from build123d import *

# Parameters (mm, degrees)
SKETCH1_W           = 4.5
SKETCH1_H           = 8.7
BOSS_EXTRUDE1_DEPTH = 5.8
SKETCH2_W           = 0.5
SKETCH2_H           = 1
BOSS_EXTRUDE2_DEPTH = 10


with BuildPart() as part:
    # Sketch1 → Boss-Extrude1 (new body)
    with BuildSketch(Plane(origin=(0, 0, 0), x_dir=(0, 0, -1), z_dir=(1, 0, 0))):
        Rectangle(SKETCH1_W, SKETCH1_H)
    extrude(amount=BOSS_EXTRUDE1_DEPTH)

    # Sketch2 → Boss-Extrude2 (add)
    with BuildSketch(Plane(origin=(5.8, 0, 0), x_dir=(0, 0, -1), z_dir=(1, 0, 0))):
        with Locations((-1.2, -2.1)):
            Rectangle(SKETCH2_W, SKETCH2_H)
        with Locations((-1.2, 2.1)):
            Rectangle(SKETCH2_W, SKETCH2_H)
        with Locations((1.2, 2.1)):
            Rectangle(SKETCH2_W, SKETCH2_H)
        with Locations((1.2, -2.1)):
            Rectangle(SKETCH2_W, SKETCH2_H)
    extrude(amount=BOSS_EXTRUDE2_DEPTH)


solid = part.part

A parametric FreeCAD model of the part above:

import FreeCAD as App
import Part
import Sketcher


def add_polygon(sketch, points):
    """Adds a closed chain of lines whose ends are joined by coincident constraints."""
    first, n = sketch.GeometryCount, len(points)
    for a, b in zip(points, points[1:] + points[:1]):
        sketch.addGeometry(Part.LineSegment(App.Vector(*a, 0), App.Vector(*b, 0)), False)
    for i in range(n):
        sketch.addConstraint(Sketcher.Constraint("Coincident", first + i, 2, first + (i + 1) % n, 1))

doc = App.newDocument("Part")
body = doc.addObject("PartDesign::Body", "Body")

sketch1 = doc.addObject("Sketcher::SketchObject", "Sketch")
body.addObject(sketch1)
sketch1.AttachmentSupport = (doc.YZ_Plane, [""])
sketch1.MapMode = "FlatFace"
add_polygon(sketch1, [(4.35, 2.25), (-4.35, 2.25), (-4.35, -2.25), (4.35, -2.25)])
sketch1.addConstraint(Sketcher.Constraint("Horizontal", 0))
sketch1.addConstraint(Sketcher.Constraint("Vertical", 1))
sketch1.addConstraint(Sketcher.Constraint("Horizontal", 2))
sketch1.addConstraint(Sketcher.Constraint("Vertical", 3))
sketch1.addConstraint(Sketcher.Constraint("Symmetric", 0, 2, 2, 2, -1, 1))
sketch1.addConstraint(Sketcher.Constraint("DistanceX", 0, 2, 0, 1, 8.7))
sketch1.addConstraint(Sketcher.Constraint("DistanceY", 1, 2, 1, 1, 4.5))
pad1 = doc.addObject("PartDesign::Pad", "Pad")
body.addObject(pad1)
pad1.Profile = sketch1
pad1.Length = 5.8

sketch2 = doc.addObject("Sketcher::SketchObject", "Sketch001")
body.addObject(sketch2)
sketch2.AttachmentSupport = (doc.YZ_Plane, [""])
sketch2.MapMode = "FlatFace"
sketch2.AttachmentOffset = App.Placement(App.Vector(0, 0, 5.8), App.Rotation())
add_polygon(sketch2, [(-1.6, 1.45), (-2.6, 1.45), (-2.6, 0.95), (-1.6, 0.95)])
add_polygon(sketch2, [(2.6, 1.45), (1.6, 1.45), (1.6, 0.95), (2.6, 0.95)])
add_polygon(sketch2, [(2.6, -0.95), (1.6, -0.95), (1.6, -1.45), (2.6, -1.45)])
add_polygon(sketch2, [(-1.6, -0.95), (-2.6, -0.95), (-2.6, -1.45), (-1.6, -1.45)])
sketch2.addConstraint(Sketcher.Constraint("Horizontal", 0))
sketch2.addConstraint(Sketcher.Constraint("Vertical", 1))
sketch2.addConstraint(Sketcher.Constraint("Horizontal", 2))
sketch2.addConstraint(Sketcher.Constraint("Vertical", 3))
sketch2.addConstraint(Sketcher.Constraint("Horizontal", 4))
sketch2.addConstraint(Sketcher.Constraint("Vertical", 5))
sketch2.addConstraint(Sketcher.Constraint("Horizontal", 6))
sketch2.addConstraint(Sketcher.Constraint("Vertical", 7))
sketch2.addConstraint(Sketcher.Constraint("Horizontal", 8))
sketch2.addConstraint(Sketcher.Constraint("Vertical", 9))
sketch2.addConstraint(Sketcher.Constraint("Horizontal", 10))
sketch2.addConstraint(Sketcher.Constraint("Vertical", 11))
sketch2.addConstraint(Sketcher.Constraint("Horizontal", 12))
sketch2.addConstraint(Sketcher.Constraint("Vertical", 13))
sketch2.addConstraint(Sketcher.Constraint("Horizontal", 14))
sketch2.addConstraint(Sketcher.Constraint("Vertical", 15))
sketch2.addConstraint(Sketcher.Constraint("Symmetric", 2, 2, 8, 2, -1, 1))
sketch2.addConstraint(Sketcher.Constraint("Symmetric", 0, 2, 10, 2, -1, 1))
sketch2.addConstraint(Sketcher.Constraint("Symmetric", 6, 2, 12, 2, -1, 1))
sketch2.addConstraint(Sketcher.Constraint("Symmetric", 4, 2, 14, 2, -1, 1))
sketch2.addConstraint(Sketcher.Constraint("Symmetric", 3, 2, 4, 2, -2))
sketch2.addConstraint(Sketcher.Constraint("Symmetric", 1, 2, 6, 2, -2))
sketch2.addConstraint(Sketcher.Constraint("DistanceX", 0, 2, 0, 1, 1.0))
sketch2.addConstraint(Sketcher.Constraint("DistanceY", 1, 2, 1, 1, 0.5))
sketch2.addConstraint(Sketcher.Constraint("DistanceX", 0, 2, -1, 1, 2.6))
sketch2.addConstraint(Sketcher.Constraint("DistanceY", 8, 2, 5, 2, 1.9))
pad2 = doc.addObject("PartDesign::Pad", "Pad001")
body.addObject(pad2)
pad2.Profile = sketch2
pad2.Length = 10

doc.recompute()
